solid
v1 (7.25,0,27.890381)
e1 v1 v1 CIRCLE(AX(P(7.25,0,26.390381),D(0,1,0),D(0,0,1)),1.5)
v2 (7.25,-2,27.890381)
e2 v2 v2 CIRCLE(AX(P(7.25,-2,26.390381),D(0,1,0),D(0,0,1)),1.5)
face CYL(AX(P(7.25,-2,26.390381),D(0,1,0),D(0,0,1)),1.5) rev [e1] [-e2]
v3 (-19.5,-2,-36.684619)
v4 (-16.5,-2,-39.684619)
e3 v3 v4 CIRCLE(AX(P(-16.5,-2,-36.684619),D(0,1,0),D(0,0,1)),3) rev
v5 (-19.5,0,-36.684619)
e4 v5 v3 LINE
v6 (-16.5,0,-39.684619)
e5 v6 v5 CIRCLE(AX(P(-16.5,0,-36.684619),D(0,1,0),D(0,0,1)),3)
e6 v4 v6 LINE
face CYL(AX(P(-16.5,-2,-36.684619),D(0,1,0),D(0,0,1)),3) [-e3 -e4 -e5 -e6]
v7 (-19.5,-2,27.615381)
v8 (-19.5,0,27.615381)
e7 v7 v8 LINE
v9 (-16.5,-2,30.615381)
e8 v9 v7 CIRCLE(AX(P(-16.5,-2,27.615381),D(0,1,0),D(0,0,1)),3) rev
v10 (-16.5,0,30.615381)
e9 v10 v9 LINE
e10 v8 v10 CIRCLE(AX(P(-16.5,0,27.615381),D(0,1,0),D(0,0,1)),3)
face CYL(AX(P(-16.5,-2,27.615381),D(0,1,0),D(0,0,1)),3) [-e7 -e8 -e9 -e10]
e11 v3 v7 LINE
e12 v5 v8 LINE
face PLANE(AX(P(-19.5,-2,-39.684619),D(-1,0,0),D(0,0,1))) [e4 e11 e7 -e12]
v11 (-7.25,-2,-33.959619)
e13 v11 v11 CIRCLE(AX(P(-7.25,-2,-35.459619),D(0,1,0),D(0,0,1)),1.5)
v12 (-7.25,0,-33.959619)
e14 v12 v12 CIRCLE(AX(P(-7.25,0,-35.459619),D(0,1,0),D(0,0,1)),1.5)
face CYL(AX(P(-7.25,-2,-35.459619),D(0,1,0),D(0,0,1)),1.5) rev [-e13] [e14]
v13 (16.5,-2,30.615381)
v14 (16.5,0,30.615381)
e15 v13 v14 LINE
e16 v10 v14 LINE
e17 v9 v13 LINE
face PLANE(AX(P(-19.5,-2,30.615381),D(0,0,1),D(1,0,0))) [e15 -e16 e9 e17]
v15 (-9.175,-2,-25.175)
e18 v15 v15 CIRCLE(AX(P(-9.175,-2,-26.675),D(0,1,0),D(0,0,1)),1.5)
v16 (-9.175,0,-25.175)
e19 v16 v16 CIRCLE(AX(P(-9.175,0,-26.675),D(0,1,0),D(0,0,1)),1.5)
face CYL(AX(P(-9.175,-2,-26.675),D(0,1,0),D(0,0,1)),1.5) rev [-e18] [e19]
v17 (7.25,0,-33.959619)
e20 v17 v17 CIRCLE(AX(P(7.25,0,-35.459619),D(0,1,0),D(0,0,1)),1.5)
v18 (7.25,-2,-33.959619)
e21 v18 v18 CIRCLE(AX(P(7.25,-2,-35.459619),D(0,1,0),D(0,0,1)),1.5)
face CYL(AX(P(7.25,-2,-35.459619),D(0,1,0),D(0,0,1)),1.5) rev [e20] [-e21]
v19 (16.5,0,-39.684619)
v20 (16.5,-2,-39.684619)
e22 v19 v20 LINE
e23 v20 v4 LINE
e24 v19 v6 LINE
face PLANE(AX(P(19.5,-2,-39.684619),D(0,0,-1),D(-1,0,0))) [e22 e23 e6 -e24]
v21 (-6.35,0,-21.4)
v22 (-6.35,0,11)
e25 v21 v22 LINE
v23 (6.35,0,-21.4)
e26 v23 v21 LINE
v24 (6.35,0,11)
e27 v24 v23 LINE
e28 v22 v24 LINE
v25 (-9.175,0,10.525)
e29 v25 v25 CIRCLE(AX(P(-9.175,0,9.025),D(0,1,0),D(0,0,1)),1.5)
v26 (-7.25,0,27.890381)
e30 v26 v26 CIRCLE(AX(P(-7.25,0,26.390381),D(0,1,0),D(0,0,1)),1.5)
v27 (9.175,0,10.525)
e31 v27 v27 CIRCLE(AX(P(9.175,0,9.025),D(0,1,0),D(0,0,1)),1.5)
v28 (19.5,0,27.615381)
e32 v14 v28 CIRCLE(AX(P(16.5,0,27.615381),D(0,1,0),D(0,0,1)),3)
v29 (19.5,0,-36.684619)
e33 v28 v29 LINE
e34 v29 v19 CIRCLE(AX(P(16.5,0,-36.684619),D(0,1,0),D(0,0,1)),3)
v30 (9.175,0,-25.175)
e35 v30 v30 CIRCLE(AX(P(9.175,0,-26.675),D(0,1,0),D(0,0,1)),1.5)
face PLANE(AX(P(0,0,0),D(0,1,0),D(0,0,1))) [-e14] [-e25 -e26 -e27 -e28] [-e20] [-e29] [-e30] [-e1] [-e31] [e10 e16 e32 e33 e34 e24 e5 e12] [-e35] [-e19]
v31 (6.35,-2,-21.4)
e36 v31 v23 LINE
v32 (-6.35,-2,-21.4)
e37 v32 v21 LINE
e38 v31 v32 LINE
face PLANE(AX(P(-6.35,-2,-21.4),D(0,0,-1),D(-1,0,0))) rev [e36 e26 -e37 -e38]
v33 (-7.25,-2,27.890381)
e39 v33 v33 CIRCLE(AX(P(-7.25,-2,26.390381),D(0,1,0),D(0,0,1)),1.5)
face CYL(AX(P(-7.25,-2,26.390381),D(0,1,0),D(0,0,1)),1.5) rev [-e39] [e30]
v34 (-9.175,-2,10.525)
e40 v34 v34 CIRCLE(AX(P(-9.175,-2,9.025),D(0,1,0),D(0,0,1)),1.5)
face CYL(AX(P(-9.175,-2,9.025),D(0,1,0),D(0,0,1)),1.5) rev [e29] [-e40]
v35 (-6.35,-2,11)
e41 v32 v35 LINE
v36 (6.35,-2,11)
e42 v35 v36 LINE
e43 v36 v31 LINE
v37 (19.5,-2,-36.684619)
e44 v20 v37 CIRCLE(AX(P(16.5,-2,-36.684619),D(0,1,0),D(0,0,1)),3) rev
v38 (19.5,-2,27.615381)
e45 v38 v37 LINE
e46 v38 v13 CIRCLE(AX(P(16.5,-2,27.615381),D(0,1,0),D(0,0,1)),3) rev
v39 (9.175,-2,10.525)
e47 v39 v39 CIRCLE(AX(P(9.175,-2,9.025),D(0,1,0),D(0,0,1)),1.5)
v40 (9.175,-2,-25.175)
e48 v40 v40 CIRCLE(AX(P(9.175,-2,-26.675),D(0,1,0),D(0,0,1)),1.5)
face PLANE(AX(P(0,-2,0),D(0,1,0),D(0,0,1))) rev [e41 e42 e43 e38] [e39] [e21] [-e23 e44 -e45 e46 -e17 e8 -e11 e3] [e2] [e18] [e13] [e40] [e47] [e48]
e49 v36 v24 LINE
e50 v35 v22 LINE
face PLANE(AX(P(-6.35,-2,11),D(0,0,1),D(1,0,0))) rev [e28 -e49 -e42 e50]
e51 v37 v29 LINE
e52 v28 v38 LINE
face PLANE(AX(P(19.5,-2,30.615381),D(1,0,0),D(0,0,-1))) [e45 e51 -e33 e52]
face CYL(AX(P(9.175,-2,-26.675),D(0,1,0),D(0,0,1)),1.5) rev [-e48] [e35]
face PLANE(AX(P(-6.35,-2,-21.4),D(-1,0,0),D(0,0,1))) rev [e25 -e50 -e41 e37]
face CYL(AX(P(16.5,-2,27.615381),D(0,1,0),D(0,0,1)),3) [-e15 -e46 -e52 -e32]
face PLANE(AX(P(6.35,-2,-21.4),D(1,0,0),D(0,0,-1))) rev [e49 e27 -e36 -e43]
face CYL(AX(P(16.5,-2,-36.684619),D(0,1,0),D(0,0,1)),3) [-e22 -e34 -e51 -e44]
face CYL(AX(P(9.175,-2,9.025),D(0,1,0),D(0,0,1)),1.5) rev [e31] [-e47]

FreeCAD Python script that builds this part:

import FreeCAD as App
import Part
import Sketcher
from FreeCAD import Vector


def edges_at(feature, points):
    """Names of the edges that pass closest to the given points."""
    edges = feature.Shape.Edges
    near = lambda p: min(range(len(edges)), key=lambda i: edges[i].distToShape(Part.Vertex(*p))[0])
    return sorted({f"Edge{near(p) + 1}" for p in points})

doc = App.newDocument("Part")
body = doc.addObject("PartDesign::Body", "Body")

# Sketch on XZ plane
sketch1 = body.newObject("Sketcher::SketchObject", "Sketch")
sketch1.AttachmentSupport = (doc.getObject("XZ_Plane"), [""])
sketch1.MapMode = "FlatFace"
sketch1.addGeometry([
    Part.LineSegment(Vector(-19.5, -39.7, 0), Vector(-19.5, 30.6, 0)),  # 0
    Part.LineSegment(Vector(-19.5, 30.6, 0), Vector(19.5, 30.6, 0)),  # 1
    Part.LineSegment(Vector(19.5, 30.6, 0), Vector(19.5, -39.7, 0)),  # 2
    Part.LineSegment(Vector(19.5, -39.7, 0), Vector(-19.5, -39.7, 0)),  # 3
    Part.Circle(Vector(-7.2, 26.4, 0), Vector(0, 0, 1), 1.5),  # 4
    Part.Circle(Vector(-9.2, 9, 0), Vector(0, 0, 1), 1.5),  # 5
    Part.Circle(Vector(7.2, 26.4, 0), Vector(0, 0, 1), 1.5),  # 6
    Part.Circle(Vector(9.2, 9, 0), Vector(0, 0, 1), 1.5),  # 7
    Part.Circle(Vector(-9.2, -26.7, 0), Vector(0, 0, 1), 1.5),  # 8
    Part.Circle(Vector(-7.2, -35.5, 0), Vector(0, 0, 1), 1.5),  # 9
    Part.LineSegment(Vector(6.3, 11, 0), Vector(-6.3, 11, 0)),  # 10
    Part.LineSegment(Vector(-6.3, 11, 0), Vector(-6.3, -21.4, 0)),  # 11
    Part.LineSegment(Vector(-6.3, -21.4, 0), Vector(6.3, -21.4, 0)),  # 12
    Part.LineSegment(Vector(6.3, -21.4, 0), Vector(6.3, 11, 0)),  # 13
    Part.Circle(Vector(9.2, -26.7, 0), Vector(0, 0, 1), 1.5),  # 14
    Part.Circle(Vector(7.2, -35.5, 0), Vector(0, 0, 1), 1.5),  # 15
], False)
sketch1.addConstraint([
    Sketcher.Constraint("Coincident", 0, 2, 1, 1),
    Sketcher.Constraint("Coincident", 1, 2, 2, 1),
    Sketcher.Constraint("Coincident", 2, 2, 3, 1),
    Sketcher.Constraint("Coincident", 3, 2, 0, 1),
    Sketcher.Constraint("Coincident", 10, 2, 11, 1),
    Sketcher.Constraint("Coincident", 11, 2, 12, 1),
    Sketcher.Constraint("Coincident", 12, 2, 13, 1),
    Sketcher.Constraint("Coincident", 13, 2, 10, 1),
    Sketcher.Constraint("Vertical", 0),
    Sketcher.Constraint("Horizontal", 1),
    Sketcher.Constraint("Vertical", 2),
    Sketcher.Constraint("Horizontal", 3),
    Sketcher.Constraint("Horizontal", 10),
    Sketcher.Constraint("Vertical", 11),
    Sketcher.Constraint("Horizontal", 12),
    Sketcher.Constraint("Vertical", 13),
    Sketcher.Constraint("Equal", 4, 5),
    Sketcher.Constraint("Equal", 5, 6),
    Sketcher.Constraint("Equal", 6, 7),
    Sketcher.Constraint("Equal", 7, 8),
    Sketcher.Constraint("Equal", 8, 9),
    Sketcher.Constraint("Equal", 9, 14),
    Sketcher.Constraint("Equal", 14, 15),
    Sketcher.Constraint("Symmetric", 4, 3, 6, 3, -2),
    Sketcher.Constraint("Symmetric", 5, 3, 7, 3, -2),
    Sketcher.Constraint("Symmetric", 8, 3, 14, 3, -2),
    Sketcher.Constraint("Symmetric", 9, 3, 15, 3, -2),
    Sketcher.Constraint("Vertical", 5, 3, 8, 3),
    Sketcher.Constraint("Vertical", 4, 3, 9, 3),
    Sketcher.Constraint("Diameter", 4, 3.0),
    Sketcher.Constraint("DistanceX", 1, 1, 1, 2, 39.0),
    Sketcher.Constraint("DistanceX", 10, 2, 10, 1, 12.7),
    Sketcher.Constraint("DistanceY", 0, 1, 0, 2, 70.3),
    Sketcher.Constraint("DistanceY", 11, 2, 11, 1, 32.4),
    Sketcher.Constraint("DistanceY", -1, 1, 10, 2, 11.0),
    Sketcher.Constraint("DistanceX", 0, 2, -1, 1, 19.5),
    Sketcher.Constraint("DistanceX", 4, 3, 6, 3, 14.5),
    Sketcher.Constraint("DistanceY", 8, 3, 5, 3, 35.7),
    Sketcher.Constraint("DistanceX", 4, 3, 10, 2, 0.9),
    Sketcher.Constraint("DistanceX", 5, 3, 7, 3, 18.35),
    Sketcher.Constraint("DistanceY", 9, 3, 4, 3, 61.85),
    Sketcher.Constraint("DistanceY", -1, 1, 5, 3, 9.025),
    Sketcher.Constraint("DistanceY", 4, 3, 0, 2, 4.225),
    Sketcher.Constraint("DistanceY", -1, 1, 4, 3, 26.390381),
])
pad1 = body.newObject("PartDesign::Pad", "Pad")
pad1.Profile = sketch1
pad1.Length = 2
doc.recompute()

fillet = body.newObject("PartDesign::Fillet", "Fillet")
fillet.Base = (pad1, edges_at(pad1, [
    (-19.5, -1, -39.685),
    (19.5, -1, -39.685),
    (19.5, -1, 30.615),
    (-19.5, -1, 30.615),
]))
fillet.Radius = 3

doc.recompute()
